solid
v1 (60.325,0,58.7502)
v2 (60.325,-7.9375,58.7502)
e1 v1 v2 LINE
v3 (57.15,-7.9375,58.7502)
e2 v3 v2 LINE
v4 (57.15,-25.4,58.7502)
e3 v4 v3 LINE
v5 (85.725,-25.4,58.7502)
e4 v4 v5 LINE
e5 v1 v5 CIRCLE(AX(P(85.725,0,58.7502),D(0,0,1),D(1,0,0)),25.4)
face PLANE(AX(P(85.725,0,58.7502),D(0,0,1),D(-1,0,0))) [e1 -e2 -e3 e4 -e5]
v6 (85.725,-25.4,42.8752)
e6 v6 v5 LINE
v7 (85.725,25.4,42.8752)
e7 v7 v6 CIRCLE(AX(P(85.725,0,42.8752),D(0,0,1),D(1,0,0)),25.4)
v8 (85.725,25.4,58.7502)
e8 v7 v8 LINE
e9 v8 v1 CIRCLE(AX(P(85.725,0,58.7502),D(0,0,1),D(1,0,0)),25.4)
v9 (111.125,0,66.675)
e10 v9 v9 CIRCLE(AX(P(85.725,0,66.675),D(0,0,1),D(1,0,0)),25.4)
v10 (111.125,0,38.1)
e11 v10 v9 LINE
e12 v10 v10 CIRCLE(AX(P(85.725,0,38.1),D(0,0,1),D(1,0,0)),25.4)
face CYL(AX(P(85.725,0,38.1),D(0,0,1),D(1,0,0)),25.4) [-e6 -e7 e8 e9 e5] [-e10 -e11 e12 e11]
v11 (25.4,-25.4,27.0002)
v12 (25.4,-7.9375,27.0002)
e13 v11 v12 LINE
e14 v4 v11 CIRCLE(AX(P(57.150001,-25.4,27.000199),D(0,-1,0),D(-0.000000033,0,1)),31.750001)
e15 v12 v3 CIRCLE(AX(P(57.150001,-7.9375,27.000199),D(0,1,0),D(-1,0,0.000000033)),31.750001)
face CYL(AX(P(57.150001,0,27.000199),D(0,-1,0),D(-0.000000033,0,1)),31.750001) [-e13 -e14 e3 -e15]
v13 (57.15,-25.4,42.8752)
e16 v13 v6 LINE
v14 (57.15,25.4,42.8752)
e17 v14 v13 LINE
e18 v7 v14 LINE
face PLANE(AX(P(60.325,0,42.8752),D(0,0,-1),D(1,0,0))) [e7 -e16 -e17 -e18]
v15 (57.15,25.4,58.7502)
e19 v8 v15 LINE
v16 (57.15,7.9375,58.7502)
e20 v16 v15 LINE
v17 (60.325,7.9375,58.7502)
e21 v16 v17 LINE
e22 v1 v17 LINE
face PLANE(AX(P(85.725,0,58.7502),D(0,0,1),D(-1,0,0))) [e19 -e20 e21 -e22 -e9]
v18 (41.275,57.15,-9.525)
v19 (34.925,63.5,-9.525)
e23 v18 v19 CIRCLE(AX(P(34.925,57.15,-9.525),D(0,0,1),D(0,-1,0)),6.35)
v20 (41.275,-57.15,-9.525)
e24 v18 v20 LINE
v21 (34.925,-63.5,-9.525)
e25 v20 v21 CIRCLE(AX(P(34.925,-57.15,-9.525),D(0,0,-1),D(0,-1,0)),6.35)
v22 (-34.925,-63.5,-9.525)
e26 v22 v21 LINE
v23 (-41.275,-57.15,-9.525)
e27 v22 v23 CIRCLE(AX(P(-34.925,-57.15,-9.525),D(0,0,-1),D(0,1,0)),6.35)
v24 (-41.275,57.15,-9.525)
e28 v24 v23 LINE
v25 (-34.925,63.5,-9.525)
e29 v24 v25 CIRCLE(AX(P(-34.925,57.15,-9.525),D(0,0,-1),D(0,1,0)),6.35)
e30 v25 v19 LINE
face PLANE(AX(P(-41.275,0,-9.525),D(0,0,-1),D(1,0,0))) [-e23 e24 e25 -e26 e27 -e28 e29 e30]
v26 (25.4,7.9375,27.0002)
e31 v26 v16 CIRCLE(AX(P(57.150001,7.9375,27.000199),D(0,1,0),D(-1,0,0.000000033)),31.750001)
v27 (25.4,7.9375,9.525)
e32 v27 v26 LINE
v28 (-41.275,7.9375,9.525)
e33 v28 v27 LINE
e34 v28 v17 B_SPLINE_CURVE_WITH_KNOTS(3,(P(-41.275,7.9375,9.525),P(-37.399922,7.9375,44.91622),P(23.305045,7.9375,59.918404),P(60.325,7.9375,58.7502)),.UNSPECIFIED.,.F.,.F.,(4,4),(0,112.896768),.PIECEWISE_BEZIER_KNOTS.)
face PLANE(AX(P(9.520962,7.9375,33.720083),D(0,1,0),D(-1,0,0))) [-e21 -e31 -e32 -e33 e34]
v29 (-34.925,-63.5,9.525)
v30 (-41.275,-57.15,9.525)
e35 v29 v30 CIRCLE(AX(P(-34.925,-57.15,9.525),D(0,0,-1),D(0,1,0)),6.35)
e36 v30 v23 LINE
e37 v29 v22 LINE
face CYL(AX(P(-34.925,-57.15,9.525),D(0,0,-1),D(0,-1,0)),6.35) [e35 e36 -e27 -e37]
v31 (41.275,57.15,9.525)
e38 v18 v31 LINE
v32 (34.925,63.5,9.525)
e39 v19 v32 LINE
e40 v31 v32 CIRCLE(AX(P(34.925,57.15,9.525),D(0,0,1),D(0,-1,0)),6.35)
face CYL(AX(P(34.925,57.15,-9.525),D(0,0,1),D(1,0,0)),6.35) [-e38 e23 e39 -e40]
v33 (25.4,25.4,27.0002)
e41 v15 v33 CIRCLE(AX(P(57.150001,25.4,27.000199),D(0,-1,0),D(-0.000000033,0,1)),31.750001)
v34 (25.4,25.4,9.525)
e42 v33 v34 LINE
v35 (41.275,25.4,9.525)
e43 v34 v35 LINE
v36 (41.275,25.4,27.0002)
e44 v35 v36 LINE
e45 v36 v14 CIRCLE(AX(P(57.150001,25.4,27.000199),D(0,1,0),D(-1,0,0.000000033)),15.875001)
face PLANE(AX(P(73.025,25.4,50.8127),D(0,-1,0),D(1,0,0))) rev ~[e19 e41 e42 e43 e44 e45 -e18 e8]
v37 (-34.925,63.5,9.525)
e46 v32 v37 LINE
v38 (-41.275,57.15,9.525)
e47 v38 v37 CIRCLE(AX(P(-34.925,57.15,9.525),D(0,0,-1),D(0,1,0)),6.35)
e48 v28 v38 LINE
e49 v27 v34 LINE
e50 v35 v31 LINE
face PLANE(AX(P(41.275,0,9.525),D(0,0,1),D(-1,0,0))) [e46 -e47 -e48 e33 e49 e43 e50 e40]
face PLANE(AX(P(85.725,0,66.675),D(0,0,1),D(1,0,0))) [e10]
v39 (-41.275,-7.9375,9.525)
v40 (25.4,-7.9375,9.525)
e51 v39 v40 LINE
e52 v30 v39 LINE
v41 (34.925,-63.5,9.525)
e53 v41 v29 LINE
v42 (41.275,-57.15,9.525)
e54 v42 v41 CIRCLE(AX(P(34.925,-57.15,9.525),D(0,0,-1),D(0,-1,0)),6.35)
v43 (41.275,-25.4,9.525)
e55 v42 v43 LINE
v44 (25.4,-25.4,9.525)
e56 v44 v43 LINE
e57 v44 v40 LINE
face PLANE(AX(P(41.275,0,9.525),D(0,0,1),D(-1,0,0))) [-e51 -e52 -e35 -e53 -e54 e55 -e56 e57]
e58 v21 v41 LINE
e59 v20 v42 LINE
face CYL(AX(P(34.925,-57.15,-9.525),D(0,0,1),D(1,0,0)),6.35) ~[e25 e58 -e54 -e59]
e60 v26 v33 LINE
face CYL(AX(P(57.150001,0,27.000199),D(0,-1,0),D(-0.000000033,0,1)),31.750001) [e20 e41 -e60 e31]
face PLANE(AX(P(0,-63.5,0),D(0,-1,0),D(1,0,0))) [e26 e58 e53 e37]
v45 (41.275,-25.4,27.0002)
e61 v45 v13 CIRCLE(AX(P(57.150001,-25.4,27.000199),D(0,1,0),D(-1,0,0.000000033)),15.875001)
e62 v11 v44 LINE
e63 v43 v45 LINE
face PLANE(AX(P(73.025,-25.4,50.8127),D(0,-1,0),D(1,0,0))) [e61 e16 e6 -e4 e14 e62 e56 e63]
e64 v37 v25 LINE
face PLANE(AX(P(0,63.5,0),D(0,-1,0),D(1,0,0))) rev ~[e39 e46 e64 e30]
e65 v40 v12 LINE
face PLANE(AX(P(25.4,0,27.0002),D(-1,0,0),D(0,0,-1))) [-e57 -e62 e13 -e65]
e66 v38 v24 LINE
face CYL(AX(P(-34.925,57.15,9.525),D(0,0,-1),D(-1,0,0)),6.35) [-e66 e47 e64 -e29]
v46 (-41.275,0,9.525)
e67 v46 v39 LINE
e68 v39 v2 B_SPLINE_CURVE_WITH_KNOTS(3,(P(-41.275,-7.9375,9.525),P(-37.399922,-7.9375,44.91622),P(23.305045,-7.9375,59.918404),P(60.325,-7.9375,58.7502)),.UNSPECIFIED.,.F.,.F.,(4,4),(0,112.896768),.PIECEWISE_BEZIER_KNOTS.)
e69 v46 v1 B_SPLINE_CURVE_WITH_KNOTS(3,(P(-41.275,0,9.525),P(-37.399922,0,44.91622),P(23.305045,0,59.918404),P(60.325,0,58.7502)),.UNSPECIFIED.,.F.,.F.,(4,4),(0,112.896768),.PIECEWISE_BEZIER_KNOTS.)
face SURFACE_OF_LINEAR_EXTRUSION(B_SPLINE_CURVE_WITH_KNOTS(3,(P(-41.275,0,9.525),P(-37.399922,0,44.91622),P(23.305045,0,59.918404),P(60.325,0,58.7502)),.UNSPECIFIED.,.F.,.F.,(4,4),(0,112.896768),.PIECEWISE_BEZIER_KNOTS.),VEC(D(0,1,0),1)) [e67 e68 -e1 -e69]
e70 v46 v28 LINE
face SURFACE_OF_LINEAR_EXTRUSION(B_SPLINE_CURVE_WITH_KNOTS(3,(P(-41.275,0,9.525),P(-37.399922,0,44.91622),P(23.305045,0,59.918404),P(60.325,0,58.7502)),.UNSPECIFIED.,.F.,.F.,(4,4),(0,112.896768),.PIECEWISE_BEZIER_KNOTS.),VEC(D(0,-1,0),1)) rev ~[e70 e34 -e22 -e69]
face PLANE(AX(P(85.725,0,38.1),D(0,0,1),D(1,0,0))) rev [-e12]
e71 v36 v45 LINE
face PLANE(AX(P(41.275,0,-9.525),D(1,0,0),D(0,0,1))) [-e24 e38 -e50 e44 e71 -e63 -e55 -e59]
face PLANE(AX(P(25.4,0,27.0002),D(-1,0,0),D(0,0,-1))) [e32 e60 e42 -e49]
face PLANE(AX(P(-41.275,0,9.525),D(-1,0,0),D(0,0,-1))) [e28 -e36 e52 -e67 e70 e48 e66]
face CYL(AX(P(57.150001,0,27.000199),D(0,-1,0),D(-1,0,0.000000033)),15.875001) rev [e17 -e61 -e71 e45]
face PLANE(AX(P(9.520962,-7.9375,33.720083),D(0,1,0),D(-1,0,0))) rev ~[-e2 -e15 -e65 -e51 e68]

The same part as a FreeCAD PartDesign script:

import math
import FreeCAD as App
import Part
import Sketcher

V = App.Vector
Q = App.Units.Quantity


def edges_at(feature, points):
    """Names of the edges that pass closest to the given points."""
    edges = feature.Shape.Edges
    near = lambda p: min(range(len(edges)), key=lambda i: edges[i].distToShape(Part.Vertex(*p))[0])
    return sorted({f"Edge{near(p) + 1}" for p in points})


def add_polygon(sketch, points):
    """Adds a closed chain of lines whose ends are joined by coincident constraints."""
    first, n = sketch.GeometryCount, len(points)
    for a, b in zip(points, points[1:] + points[:1]):
        sketch.addGeometry(Part.LineSegment(App.Vector(*a, 0), App.Vector(*b, 0)), False)
    for i in range(n):
        sketch.addConstraint(Sketcher.Constraint("Coincident", first + i, 2, first + (i + 1) % n, 1))

doc = App.newDocument("Part")
body = doc.addObject("PartDesign::Body", "Body")

sketch1 = doc.addObject("Sketcher::SketchObject", "Sketch")
body.addObject(sketch1)
sketch1.AttachmentSupport = (doc.XZ_Plane, [""])
sketch1.MapMode = "FlatFace"
add_polygon(sketch1, [(-41, 10), (-41, -10), (41, -10), (41, 10)])
sketch1.addConstraint(Sketcher.Constraint("Vertical", 0))
sketch1.addConstraint(Sketcher.Constraint("Horizontal", 1))
sketch1.addConstraint(Sketcher.Constraint("Vertical", 2))
sketch1.addConstraint(Sketcher.Constraint("Horizontal", 3))
sketch1.addConstraint(Sketcher.Constraint("Symmetric", 0, 2, 2, 2, -1, 1))
sketch1.addConstraint(Sketcher.Constraint("DistanceX", 1, 1, 1, 2, Q("3.25 in")))
sketch1.addConstraint(Sketcher.Constraint("DistanceY", 0, 2, 0, 1, Q("0.75 in")))
pad1 = doc.addObject("PartDesign::Pad", "Pad")
body.addObject(pad1)
pad1.Profile = sketch1
pad1.Length = Q("5 in")
pad1.Midplane = True

sketch2 = doc.addObject("Sketcher::SketchObject", "Sketch001")
body.addObject(sketch2)
sketch2.AttachmentSupport = (doc.XZ_Plane, [""])
sketch2.MapMode = "FlatFace"
sketch2.addGeometry(Part.BSplineCurve([V(-41.275, 9.525, 0), V(-37.399922, 44.91622, 0), V(23.305045, 59.918404, 0), V(60.325, 58.7502, 0)], [4, 4], [0, 112.896768], False, 3, [1, 1, 1, 1], False), False)
sketch2.addGeometry(Part.LineSegment(V(-41.275, 9.525, 0), V(25.4, 9.525, 0)), False)
sketch2.addGeometry(Part.LineSegment(V(25.4, 9.525, 0), V(25.4, 27.0002, 0)), False)
sketch2.addGeometry(Part.ArcOfCircle(Part.Circle(V(57.150001, 27.000199, 0), V(0, 0, 1), 31.750001), math.radians(90.000002), math.radians(179.999998)), False)
sketch2.addGeometry(Part.LineSegment(V(57.15, 58.7502, 0), V(60.325, 58.7502, 0)), False)
sketch2.addConstraint(Sketcher.Constraint("Block", 0))
sketch2.addConstraint(Sketcher.Constraint("Coincident", 0, 1, 1, 1))
sketch2.addConstraint(Sketcher.Constraint("Coincident", 1, 2, 2, 1))
sketch2.addConstraint(Sketcher.Constraint("Tangent", 2, 2, 3, 2))
sketch2.addConstraint(Sketcher.Constraint("Tangent", 3, 1, 4, 1))
sketch2.addConstraint(Sketcher.Constraint("Coincident", 4, 2, 0, 2))
sketch2.addConstraint(Sketcher.Constraint("Horizontal", 1))
sketch2.addConstraint(Sketcher.Constraint("Vertical", 2))
sketch2.addConstraint(Sketcher.Constraint("Horizontal", 4))
sketch2.addConstraint(Sketcher.Constraint("Radius", 3, Q("1.25 in")))
sketch2.addConstraint(Sketcher.Constraint("DistanceX", -1, 1, 1, 2, Q("1 in")))
pad2 = doc.addObject("PartDesign::Pad", "Pad001")
body.addObject(pad2)
pad2.Profile = sketch2
pad2.Length = Q("0.625 in")
pad2.Midplane = True

sketch3 = doc.addObject("Sketcher::SketchObject", "Sketch002")
body.addObject(sketch3)
sketch3.AttachmentSupport = (doc.XZ_Plane, [""])
sketch3.MapMode = "FlatFace"
sketch3.addGeometry(Part.LineSegment(V(25.4, 9.5, 0), V(41.3, 9.5, 0)), False)
sketch3.addGeometry(Part.LineSegment(V(41.3, 9.5, 0), V(41.3, 27, 0)), False)
sketch3.addGeometry(Part.ArcOfCircle(Part.Circle(V(57.2, 27, 0), V(0, 0, 1), 15.9), math.radians(90), math.radians(180)), False)
sketch3.addGeometry(Part.LineSegment(V(57.1, 42.9, 0), V(60.3, 42.9, 0)), False)
sketch3.addGeometry(Part.LineSegment(V(60.3, 42.9, 0), V(60.3, 58.8, 0)), False)
sketch3.addGeometry(Part.LineSegment(V(60.3, 58.8, 0), V(57.1, 58.8, 0)), False)
sketch3.addGeometry(Part.ArcOfCircle(Part.Circle(V(57.2, 27, 0), V(0, 0, 1), 31.8), math.radians(90), math.radians(180)), False)
sketch3.addGeometry(Part.LineSegment(V(25.4, 27, 0), V(25.4, 9.5, 0)), False)
sketch3.addConstraint(Sketcher.Constraint("Coincident", 0, 2, 1, 1))
sketch3.addConstraint(Sketcher.Constraint("Tangent", 1, 2, 2, 2))
sketch3.addConstraint(Sketcher.Constraint("Tangent", 2, 1, 3, 1))
sketch3.addConstraint(Sketcher.Constraint("Coincident", 3, 2, 4, 1))
sketch3.addConstraint(Sketcher.Constraint("Coincident", 4, 2, 5, 1))
sketch3.addConstraint(Sketcher.Constraint("Tangent", 5, 2, 6, 1))
sketch3.addConstraint(Sketcher.Constraint("Tangent", 6, 2, 7, 1))
sketch3.addConstraint(Sketcher.Constraint("Coincident", 7, 2, 0, 1))
sketch3.addConstraint(Sketcher.Constraint("Horizontal", 0))
sketch3.addConstraint(Sketcher.Constraint("Vertical", 1))
sketch3.addConstraint(Sketcher.Constraint("Horizontal", 3))
sketch3.addConstraint(Sketcher.Constraint("Vertical", 4))
sketch3.addConstraint(Sketcher.Constraint("Horizontal", 5))
sketch3.addConstraint(Sketcher.Constraint("Vertical", 7))
sketch3.addConstraint(Sketcher.Constraint("Coincident", 6, 3, 2, 3))
sketch3.addConstraint(Sketcher.Constraint("Radius", 6, Q("1.25 in")))
sketch3.addConstraint(Sketcher.Constraint("DistanceX", -1, 1, 6, 2, Q("1 in")))
sketch3.addConstraint(Sketcher.Constraint("Radius", 2, Q("0.625 in")))
sketch3.addConstraint(Sketcher.Constraint("DistanceX", 3, 1, 3, 2, Q("0.125 in")))
sketch3.addConstraint(Sketcher.Constraint("DistanceY", 1, 1, 1, 2, Q("0.688 in")))
sketch3.addConstraint(Sketcher.Constraint("DistanceY", -1, 1, 2, 3, Q("1.063 in")))
pad3 = doc.addObject("PartDesign::Pad", "Pad002")
body.addObject(pad3)
pad3.Profile = sketch3
pad3.Length = Q("2 in")
pad3.Midplane = True

sketch4 = doc.addObject("Sketcher::SketchObject", "Sketch003")
body.addObject(sketch4)
sketch4.AttachmentSupport = (doc.XZ_Plane, [""])
sketch4.MapMode = "FlatFace"
add_polygon(sketch4, [(60, 59), (60, 43), (86, 43), (86, 59)])
sketch4.addConstraint(Sketcher.Constraint("Vertical", 0))
sketch4.addConstraint(Sketcher.Constraint("Horizontal", 1))
sketch4.addConstraint(Sketcher.Constraint("Vertical", 2))
sketch4.addConstraint(Sketcher.Constraint("Horizontal", 3))
sketch4.addConstraint(Sketcher.Constraint("DistanceX", 1, 1, 1, 2, Q("1 in")))
sketch4.addConstraint(Sketcher.Constraint("DistanceY", 0, 2, 0, 1, Q("0.625 in")))
sketch4.addConstraint(Sketcher.Constraint("DistanceX", -1, 1, 0, 2, Q("2.375 in")))
sketch4.addConstraint(Sketcher.Constraint("DistanceY", -1, 1, 0, 2, Q("1.688 in")))
pad4 = doc.addObject("PartDesign::Pad", "Pad003")
body.addObject(pad4)
pad4.Profile = sketch4
pad4.Length = Q("2 in")
pad4.Midplane = True

sketch5 = doc.addObject("Sketcher::SketchObject", "Sketch004")
body.addObject(sketch5)
sketch5.AttachmentSupport = (doc.XZ_Plane, [""])
sketch5.MapMode = "FlatFace"
add_polygon(sketch5, [(111, 67), (86, 67), (86, 38), (111, 38)])
sketch5.addGeometry(Part.LineSegment(V(86, 38, 0), V(86, 67, 0)), True)
sketch5.addConstraint(Sketcher.Constraint("Horizontal", 0))
sketch5.addConstraint(Sketcher.Constraint("Vertical", 1))
sketch5.addConstraint(Sketcher.Constraint("Horizontal", 2))
sketch5.addConstraint(Sketcher.Constraint("Vertical", 3))
sketch5.addConstraint(Sketcher.Constraint("Vertical", 4))
sketch5.addConstraint(Sketcher.Constraint("Coincident", 4, 1, 1, 2))
sketch5.addConstraint(Sketcher.Constraint("Horizontal", 3, 2, 4, 2))
sketch5.addConstraint(Sketcher.Constraint("DistanceX", 0, 2, 0, 1, Q("1 in")))
sketch5.addConstraint(Sketcher.Constraint("DistanceY", -1, 1, 1, 2, Q("1.5 in")))
sketch5.addConstraint(Sketcher.Constraint("DistanceY", 1, 2, 1, 1, Q("1.125 in")))
sketch5.addConstraint(Sketcher.Constraint("DistanceX", -1, 1, 0, 2, Q("3.375 in")))
revolution = doc.addObject("PartDesign::Revolution", "Revolution")
body.addObject(revolution)
revolution.Profile = sketch5
revolution.ReferenceAxis = (sketch5, ["Axis0"])
revolution.Angle = 360
doc.recompute()

fillet = doc.addObject("PartDesign::Fillet", "Fillet")
body.addObject(fillet)
fillet.Base = (revolution, edges_at(revolution, [
    (41.275, -63.5, 0),
    (-41.275, -63.5, 0),
    (41.275, 63.5, 0),
    (-41.275, 63.5, 0),
]))
fillet.Radius = Q("0.25 in")

doc.recompute()
